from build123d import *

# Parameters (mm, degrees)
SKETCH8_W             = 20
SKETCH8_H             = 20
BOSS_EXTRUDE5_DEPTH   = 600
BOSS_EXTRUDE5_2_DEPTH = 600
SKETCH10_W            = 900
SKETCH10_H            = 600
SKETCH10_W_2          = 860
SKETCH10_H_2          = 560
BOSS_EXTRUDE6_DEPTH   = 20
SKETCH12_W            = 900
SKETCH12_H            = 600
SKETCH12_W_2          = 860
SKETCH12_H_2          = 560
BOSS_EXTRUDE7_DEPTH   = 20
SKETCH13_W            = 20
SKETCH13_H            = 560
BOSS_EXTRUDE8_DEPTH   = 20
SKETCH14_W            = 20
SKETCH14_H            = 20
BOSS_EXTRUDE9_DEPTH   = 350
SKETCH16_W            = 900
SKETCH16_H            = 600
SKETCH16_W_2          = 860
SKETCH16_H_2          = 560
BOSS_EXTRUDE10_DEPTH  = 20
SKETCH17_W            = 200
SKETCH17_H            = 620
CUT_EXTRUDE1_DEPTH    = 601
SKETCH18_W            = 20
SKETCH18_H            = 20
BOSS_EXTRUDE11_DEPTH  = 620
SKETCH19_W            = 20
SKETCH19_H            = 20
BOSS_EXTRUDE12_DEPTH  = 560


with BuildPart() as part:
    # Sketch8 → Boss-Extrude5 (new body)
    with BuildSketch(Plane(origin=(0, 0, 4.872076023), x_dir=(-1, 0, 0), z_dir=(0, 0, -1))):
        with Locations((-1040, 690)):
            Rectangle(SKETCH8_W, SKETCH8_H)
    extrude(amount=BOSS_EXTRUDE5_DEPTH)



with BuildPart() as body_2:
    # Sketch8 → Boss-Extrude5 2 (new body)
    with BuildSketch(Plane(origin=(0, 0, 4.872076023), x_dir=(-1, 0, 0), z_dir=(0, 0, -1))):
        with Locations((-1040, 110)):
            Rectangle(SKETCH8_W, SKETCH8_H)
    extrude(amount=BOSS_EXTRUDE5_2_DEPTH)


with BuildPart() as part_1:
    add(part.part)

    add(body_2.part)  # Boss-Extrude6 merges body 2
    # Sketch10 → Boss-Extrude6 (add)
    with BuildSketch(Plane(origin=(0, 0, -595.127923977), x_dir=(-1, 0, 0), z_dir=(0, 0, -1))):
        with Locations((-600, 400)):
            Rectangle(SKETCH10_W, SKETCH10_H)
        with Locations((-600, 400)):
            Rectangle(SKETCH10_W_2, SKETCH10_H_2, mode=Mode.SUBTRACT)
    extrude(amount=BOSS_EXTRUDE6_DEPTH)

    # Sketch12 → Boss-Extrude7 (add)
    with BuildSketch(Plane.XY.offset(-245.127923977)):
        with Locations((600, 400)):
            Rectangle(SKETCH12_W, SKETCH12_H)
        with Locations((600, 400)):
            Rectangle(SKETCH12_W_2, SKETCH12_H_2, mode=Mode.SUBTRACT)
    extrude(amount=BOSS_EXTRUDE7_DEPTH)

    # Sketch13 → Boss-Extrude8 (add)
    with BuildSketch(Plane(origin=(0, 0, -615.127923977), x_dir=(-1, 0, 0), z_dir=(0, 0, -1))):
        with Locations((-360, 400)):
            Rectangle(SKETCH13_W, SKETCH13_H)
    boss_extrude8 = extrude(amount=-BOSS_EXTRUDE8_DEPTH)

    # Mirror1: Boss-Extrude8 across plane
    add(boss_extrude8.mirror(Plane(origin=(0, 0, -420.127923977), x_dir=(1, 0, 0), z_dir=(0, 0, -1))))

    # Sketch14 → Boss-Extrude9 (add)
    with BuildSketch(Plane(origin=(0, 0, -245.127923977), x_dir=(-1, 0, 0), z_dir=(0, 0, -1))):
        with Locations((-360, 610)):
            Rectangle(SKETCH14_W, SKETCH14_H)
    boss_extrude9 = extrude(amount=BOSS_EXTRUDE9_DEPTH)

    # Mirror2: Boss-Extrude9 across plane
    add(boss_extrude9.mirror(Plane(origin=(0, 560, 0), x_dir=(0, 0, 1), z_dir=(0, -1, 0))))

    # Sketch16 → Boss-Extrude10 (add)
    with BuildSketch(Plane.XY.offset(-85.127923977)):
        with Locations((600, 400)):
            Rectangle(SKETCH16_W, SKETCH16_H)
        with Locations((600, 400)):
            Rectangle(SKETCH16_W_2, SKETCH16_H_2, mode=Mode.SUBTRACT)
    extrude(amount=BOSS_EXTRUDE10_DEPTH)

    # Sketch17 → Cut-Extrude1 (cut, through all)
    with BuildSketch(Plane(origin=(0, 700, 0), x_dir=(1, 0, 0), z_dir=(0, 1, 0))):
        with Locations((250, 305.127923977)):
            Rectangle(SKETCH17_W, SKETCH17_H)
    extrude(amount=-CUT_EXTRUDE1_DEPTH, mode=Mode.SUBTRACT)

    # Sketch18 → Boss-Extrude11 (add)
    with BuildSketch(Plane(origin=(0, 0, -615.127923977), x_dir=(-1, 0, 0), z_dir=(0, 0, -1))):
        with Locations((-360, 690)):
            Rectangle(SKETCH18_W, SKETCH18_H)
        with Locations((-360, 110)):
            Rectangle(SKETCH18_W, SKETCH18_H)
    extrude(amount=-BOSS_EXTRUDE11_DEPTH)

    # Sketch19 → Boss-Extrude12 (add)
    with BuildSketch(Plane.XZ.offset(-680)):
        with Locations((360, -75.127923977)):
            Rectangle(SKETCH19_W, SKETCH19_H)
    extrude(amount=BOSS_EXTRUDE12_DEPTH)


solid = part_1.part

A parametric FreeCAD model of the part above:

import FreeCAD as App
import Part
import Sketcher
from FreeCAD import Vector
Q = App.Units.Quantity

doc = App.newDocument("Part")
body = doc.addObject("PartDesign::Body", "Body")

# Sketch on XY plane
sketch1 = body.newObject("Sketcher::SketchObject", "Sketch")
sketch1.AttachmentSupport = (doc.getObject("XY_Plane"), [""])
sketch1.MapMode = "FlatFace"
sketch1.AttachmentOffset = App.Placement(Vector(0, 0, 4.872076), App.Rotation())
sketch1.addGeometry([
    Part.LineSegment(Vector(1050, 700, 0), Vector(1050, 680, 0)),
    Part.LineSegment(Vector(1050, 680, 0), Vector(1030, 680, 0)),
    Part.LineSegment(Vector(1030, 680, 0), Vector(1030, 700, 0)),
    Part.LineSegment(Vector(1030, 700, 0), Vector(1050, 700, 0)),
], False)
sketch1.addConstraint([
    Sketcher.Constraint("Coincident", 0, 2, 1, 1),
    Sketcher.Constraint("Coincident", 1, 2, 2, 1),
    Sketcher.Constraint("Coincident", 2, 2, 3, 1),
    Sketcher.Constraint("Coincident", 3, 2, 0, 1),
    Sketcher.Constraint("Vertical", 0),
    Sketcher.Constraint("Horizontal", 1),
    Sketcher.Constraint("Vertical", 2),
    Sketcher.Constraint("Horizontal", 3),
    Sketcher.Constraint("Equal", 3, 0),
    Sketcher.Constraint("DistanceX", 1, 2, 1, 1, Q("20 mm")),
    Sketcher.Constraint("DistanceX", -1, 1, 0, 2, Q("1050 mm")),
    Sketcher.Constraint("DistanceY", -1, 1, 0, 2, Q("680 mm")),
])
pad1 = body.newObject("PartDesign::Pad", "Pad")
pad1.Profile = sketch1
pad1.Length = 600
pad1.Reversed = True
body2 = doc.addObject("PartDesign::Body", "Body001")

# Sketch on XY plane
sketch2 = body2.newObject("Sketcher::SketchObject", "Sketch001")
sketch2.AttachmentSupport = (doc.getObject("XY_Plane001"), [""])
sketch2.MapMode = "FlatFace"
sketch2.AttachmentOffset = App.Placement(Vector(0, 0, 4.872076), App.Rotation())
sketch2.addGeometry([
    Part.LineSegment(Vector(1050, 120, 0), Vector(1050, 100, 0)),
    Part.LineSegment(Vector(1050, 100, 0), Vector(1030, 100, 0)),
    Part.LineSegment(Vector(1030, 100, 0), Vector(1030, 120, 0)),
    Part.LineSegment(Vector(1030, 120, 0), Vector(1050, 120, 0)),
], False)
sketch2.addConstraint([
    Sketcher.Constraint("Coincident", 0, 2, 1, 1),
    Sketcher.Constraint("Coincident", 1, 2, 2, 1),
    Sketcher.Constraint("Coincident", 2, 2, 3, 1),
    Sketcher.Constraint("Coincident", 3, 2, 0, 1),
    Sketcher.Constraint("Vertical", 0),
    Sketcher.Constraint("Horizontal", 1),
    Sketcher.Constraint("Vertical", 2),
    Sketcher.Constraint("Horizontal", 3),
    Sketcher.Constraint("Equal", 3, 0),
    Sketcher.Constraint("DistanceX", 1, 2, 1, 1, Q("20 mm")),
    Sketcher.Constraint("DistanceX", -1, 1, 0, 2, Q("1050 mm")),
    Sketcher.Constraint("DistanceY", -1, 1, 0, 2, Q("100 mm")),
])
pad2 = body2.newObject("PartDesign::Pad", "Pad001")
pad2.Profile = sketch2
pad2.Length = 600
pad2.Reversed = True
body.AllowCompound = True
doc.recompute()

boolean = body.newObject("PartDesign::Boolean", "Boolean")
boolean.Type = "Fuse"
boolean.addObjects([body2])

# Sketch on XY plane
sketch3 = body.newObject("Sketcher::SketchObject", "Sketch002")
sketch3.AttachmentSupport = (doc.getObject("XY_Plane"), [""])
sketch3.MapMode = "FlatFace"
sketch3.AttachmentOffset = App.Placement(Vector(0, 0, -595.127924), App.Rotation())
sketch3.addGeometry([
    Part.LineSegment(Vector(1050, 700, 0), Vector(1050, 100, 0)),  # 0
    Part.LineSegment(Vector(1050, 100, 0), Vector(150, 100, 0)),  # 1
    Part.LineSegment(Vector(150, 100, 0), Vector(150, 700, 0)),  # 2
    Part.LineSegment(Vector(150, 700, 0), Vector(1050, 700, 0)),  # 3
    Part.LineSegment(Vector(170, 120, 0), Vector(1030, 120, 0)),  # 4
    Part.LineSegment(Vector(1030, 120, 0), Vector(1030, 680, 0)),  # 5
    Part.LineSegment(Vector(1030, 680, 0), Vector(170, 680, 0)),  # 6
    Part.LineSegment(Vector(170, 680, 0), Vector(170, 120, 0)),  # 7
], False)
sketch3.addConstraint([
    Sketcher.Constraint("Coincident", 0, 2, 1, 1),
    Sketcher.Constraint("Coincident", 1, 2, 2, 1),
    Sketcher.Constraint("Coincident", 2, 2, 3, 1),
    Sketcher.Constraint("Coincident", 3, 2, 0, 1),
    Sketcher.Constraint("Coincident", 4, 2, 5, 1),
    Sketcher.Constraint("Coincident", 5, 2, 6, 1),
    Sketcher.Constraint("Coincident", 6, 2, 7, 1),
    Sketcher.Constraint("Coincident", 7, 2, 4, 1),
    Sketcher.Constraint("Vertical", 0),
    Sketcher.Constraint("Horizontal", 1),
    Sketcher.Constraint("Vertical", 2),
    Sketcher.Constraint("Horizontal", 3),
    Sketcher.Constraint("Horizontal", 4),
    Sketcher.Constraint("Vertical", 5),
    Sketcher.Constraint("Horizontal", 6),
    Sketcher.Constraint("Vertical", 7),
    Sketcher.Constraint("DistanceX", 1, 2, 1, 1, Q("900 mm")),
    Sketcher.Constraint("DistanceX", 4, 1, 4, 2, Q("860 mm")),
    Sketcher.Constraint("DistanceY", 0, 2, 0, 1, Q("600 mm")),
    Sketcher.Constraint("DistanceY", 5, 1, 5, 2, Q("560 mm")),
    Sketcher.Constraint("DistanceX", -1, 1, 0, 2, Q("1050 mm")),
    Sketcher.Constraint("DistanceY", -1, 1, 0, 2, Q("100 mm")),
    Sketcher.Constraint("DistanceX", -1, 1, 4, 2, Q("1030 mm")),
    Sketcher.Constraint("DistanceY", -1, 1, 4, 2, Q("120 mm")),
])
pad3 = body.newObject("PartDesign::Pad", "Pad002")
pad3.Profile = sketch3
pad3.Length = 20
pad3.Reversed = True

# Sketch on XY plane
sketch4 = body.newObject("Sketcher::SketchObject", "Sketch003")
sketch4.AttachmentSupport = (doc.getObject("XY_Plane"), [""])
sketch4.MapMode = "FlatFace"
sketch4.AttachmentOffset = App.Placement(Vector(0, 0, -245.127924), App.Rotation())
sketch4.addGeometry([
    Part.LineSegment(Vector(150, 700, 0), Vector(150, 100, 0)),  # 0
    Part.LineSegment(Vector(150, 100, 0), Vector(1050, 100, 0)),  # 1
    Part.LineSegment(Vector(1050, 100, 0), Vector(1050, 700, 0)),  # 2
    Part.LineSegment(Vector(1050, 700, 0), Vector(150, 700, 0)),  # 3
    Part.LineSegment(Vector(1030, 120, 0), Vector(170, 120, 0)),  # 4
    Part.LineSegment(Vector(170, 120, 0), Vector(170, 680, 0)),  # 5
    Part.LineSegment(Vector(170, 680, 0), Vector(1030, 680, 0)),  # 6
    Part.LineSegment(Vector(1030, 680, 0), Vector(1030, 120, 0)),  # 7
], False)
sketch4.addConstraint([
    Sketcher.Constraint("Coincident", 0, 2, 1, 1),
    Sketcher.Constraint("Coincident", 1, 2, 2, 1),
    Sketcher.Constraint("Coincident", 2, 2, 3, 1),
    Sketcher.Constraint("Coincident", 3, 2, 0, 1),
    Sketcher.Constraint("Coincident", 4, 2, 5, 1),
    Sketcher.Constraint("Coincident", 5, 2, 6, 1),
    Sketcher.Constraint("Coincident", 6, 2, 7, 1),
    Sketcher.Constraint("Coincident", 7, 2, 4, 1),
    Sketcher.Constraint("Vertical", 0),
    Sketcher.Constraint("Horizontal", 1),
    Sketcher.Constraint("Vertical", 2),
    Sketcher.Constraint("Horizontal", 3),
    Sketcher.Constraint("Horizontal", 4),
    Sketcher.Constraint("Vertical", 5),
    Sketcher.Constraint("Horizontal", 6),
    Sketcher.Constraint("Vertical", 7),
    Sketcher.Constraint("DistanceX", 1, 1, 1, 2, Q("900 mm")),
    Sketcher.Constraint("DistanceX", 4, 2, 4, 1, Q("860 mm")),
    Sketcher.Constraint("DistanceY", 0, 2, 0, 1, Q("600 mm")),
    Sketcher.Constraint("DistanceY", 5, 1, 5, 2, Q("560 mm")),
    Sketcher.Constraint("DistanceX", -1, 1, 0, 2, Q("150 mm")),
    Sketcher.Constraint("DistanceY", -1, 1, 0, 2, Q("100 mm")),
    Sketcher.Constraint("DistanceX", -1, 1, 4, 2, Q("170 mm")),
    Sketcher.Constraint("DistanceY", -1, 1, 4, 2, Q("120 mm")),
])
pad4 = body.newObject("PartDesign::Pad", "Pad003")
pad4.Profile = sketch4
pad4.Length = 20

# Sketch on XY plane
sketch5 = body.newObject("Sketcher::SketchObject", "Sketch004")
sketch5.AttachmentSupport = (doc.getObject("XY_Plane"), [""])
sketch5.MapMode = "FlatFace"
sketch5.AttachmentOffset = App.Placement(Vector(0, 0, -615.127924), App.Rotation())
sketch5.addGeometry([
    Part.LineSegment(Vector(370, 680, 0), Vector(370, 120, 0)),
    Part.LineSegment(Vector(370, 120, 0), Vector(350, 120, 0)),
    Part.LineSegment(Vector(350, 120, 0), Vector(350, 680, 0)),
    Part.LineSegment(Vector(350, 680, 0), Vector(370, 680, 0)),
], False)
sketch5.addConstraint([
    Sketcher.Constraint("Coincident", 0, 2, 1, 1),
    Sketcher.Constraint("Coincident", 1, 2, 2, 1),
    Sketcher.Constraint("Coincident", 2, 2, 3, 1),
    Sketcher.Constraint("Coincident", 3, 2, 0, 1),
    Sketcher.Constraint("Vertical", 0),
    Sketcher.Constraint("Horizontal", 1),
    Sketcher.Constraint("Vertical", 2),
    Sketcher.Constraint("Horizontal", 3),
    Sketcher.Constraint("DistanceX", 1, 2, 1, 1, Q("20 mm")),
    Sketcher.Constraint("DistanceY", 0, 2, 0, 1, Q("560 mm")),
    Sketcher.Constraint("DistanceX", -1, 1, 0, 2, Q("370 mm")),
    Sketcher.Constraint("DistanceY", -1, 1, 0, 2, Q("120 mm")),
])
pad5 = body.newObject("PartDesign::Pad", "Pad004")
pad5.Profile = sketch5
pad5.Length = 20
doc.recompute()

datumplane = body.newObject("PartDesign::Plane", "DatumPlane")
datumplane.AttachmentSupport = (doc.getObject("XY_Plane"), [""])
datumplane.MapMode = "FlatFace"
datumplane.AttachmentOffset = App.Placement(Vector(0, 0, -420.127924), App.Rotation())
mirrored = body.newObject("PartDesign::Mirrored", "Mirrored")
mirrored.Originals = [pad5]
mirrored.MirrorPlane = (datumplane, [""])
body.Tip = mirrored

# Sketch on XY plane
sketch6 = body.newObject("Sketcher::SketchObject", "Sketch005")
sketch6.AttachmentSupport = (doc.getObject("XY_Plane"), [""])
sketch6.MapMode = "FlatFace"
sketch6.AttachmentOffset = App.Placement(Vector(0, 0, -245.127924), App.Rotation())
sketch6.addGeometry([
    Part.LineSegment(Vector(370, 620, 0), Vector(370, 600, 0)),
    Part.LineSegment(Vector(370, 600, 0), Vector(350, 600, 0)),
    Part.LineSegment(Vector(350, 600, 0), Vector(350, 620, 0)),
    Part.LineSegment(Vector(350, 620, 0), Vector(370, 620, 0)),
], False)
sketch6.addConstraint([
    Sketcher.Constraint("Coincident", 0, 2, 1, 1),
    Sketcher.Constraint("Coincident", 1, 2, 2, 1),
    Sketcher.Constraint("Coincident", 2, 2, 3, 1),
    Sketcher.Constraint("Coincident", 3, 2, 0, 1),
    Sketcher.Constraint("Vertical", 0),
    Sketcher.Constraint("Horizontal", 1),
    Sketcher.Constraint("Vertical", 2),
    Sketcher.Constraint("Horizontal", 3),
    Sketcher.Constraint("Equal", 3, 0),
    Sketcher.Constraint("DistanceX", 1, 2, 1, 1, Q("20 mm")),
    Sketcher.Constraint("DistanceX", -1, 1, 0, 2, Q("370 mm")),
    Sketcher.Constraint("DistanceY", -1, 1, 0, 2, Q("600 mm")),
])
pad6 = body.newObject("PartDesign::Pad", "Pad005")
pad6.Profile = sketch6
pad6.Length = 350
pad6.Reversed = True
doc.recompute()

datumplane2 = body.newObject("PartDesign::Plane", "DatumPlane001")
datumplane2.AttachmentSupport = (doc.getObject("XZ_Plane"), [""])
datumplane2.MapMode = "FlatFace"
datumplane2.AttachmentOffset = App.Placement(Vector(0, 0, -560), App.Rotation())
mirrored2 = body.newObject("PartDesign::Mirrored", "Mirrored001")
mirrored2.Originals = [pad6]
mirrored2.MirrorPlane = (datumplane2, [""])
body.Tip = mirrored2

# Sketch on XY plane
sketch7 = body.newObject("Sketcher::SketchObject", "Sketch006")
sketch7.AttachmentSupport = (doc.getObject("XY_Plane"), [""])
sketch7.MapMode = "FlatFace"
sketch7.AttachmentOffset = App.Placement(Vector(0, 0, -85.127924), App.Rotation())
sketch7.addGeometry([
    Part.LineSegment(Vector(150, 700, 0), Vector(150, 100, 0)),  # 0
    Part.LineSegment(Vector(150, 100, 0), Vector(1050, 100, 0)),  # 1
    Part.LineSegment(Vector(1050, 100, 0), Vector(1050, 700, 0)),  # 2
    Part.LineSegment(Vector(1050, 700, 0), Vector(150, 700, 0)),  # 3
    Part.LineSegment(Vector(1030, 120, 0), Vector(170, 120, 0)),  # 4
    Part.LineSegment(Vector(170, 120, 0), Vector(170, 680, 0)),  # 5
    Part.LineSegment(Vector(170, 680, 0), Vector(1030, 680, 0)),  # 6
    Part.LineSegment(Vector(1030, 680, 0), Vector(1030, 120, 0)),  # 7
], False)
sketch7.addConstraint([
    Sketcher.Constraint("Coincident", 0, 2, 1, 1),
    Sketcher.Constraint("Coincident", 1, 2, 2, 1),
    Sketcher.Constraint("Coincident", 2, 2, 3, 1),
    Sketcher.Constraint("Coincident", 3, 2, 0, 1),
    Sketcher.Constraint("Coincident", 4, 2, 5, 1),
    Sketcher.Constraint("Coincident", 5, 2, 6, 1),
    Sketcher.Constraint("Coincident", 6, 2, 7, 1),
    Sketcher.Constraint("Coincident", 7, 2, 4, 1),
    Sketcher.Constraint("Vertical", 0),
    Sketcher.Constraint("Horizontal", 1),
    Sketcher.Constraint("Vertical", 2),
    Sketcher.Constraint("Horizontal", 3),
    Sketcher.Constraint("Horizontal", 4),
    Sketcher.Constraint("Vertical", 5),
    Sketcher.Constraint("Horizontal", 6),
    Sketcher.Constraint("Vertical", 7),
    Sketcher.Constraint("DistanceX", 1, 1, 1, 2, Q("900 mm")),
    Sketcher.Constraint("DistanceX", 4, 2, 4, 1, Q("860 mm")),
    Sketcher.Constraint("DistanceY", 0, 2, 0, 1, Q("600 mm")),
    Sketcher.Constraint("DistanceY", 5, 1, 5, 2, Q("560 mm")),
    Sketcher.Constraint("DistanceX", -1, 1, 0, 2, Q("150 mm")),
    Sketcher.Constraint("DistanceY", -1, 1, 0, 2, Q("100 mm")),
    Sketcher.Constraint("DistanceX", -1, 1, 4, 2, Q("170 mm")),
    Sketcher.Constraint("DistanceY", -1, 1, 4, 2, Q("120 mm")),
])
pad7 = body.newObject("PartDesign::Pad", "Pad006")
pad7.Profile = sketch7
pad7.Length = 20

# Sketch on XZ plane
sketch8 = body.newObject("Sketcher::SketchObject", "Sketch007")
sketch8.AttachmentSupport = (doc.getObject("XZ_Plane"), [""])
sketch8.MapMode = "FlatFace"
sketch8.AttachmentOffset = App.Placement(Vector(0, 0, -700), App.Rotation())
sketch8.addGeometry([
    Part.LineSegment(Vector(150, -615.127924, 0), Vector(150, 4.872076, 0)),
    Part.LineSegment(Vector(150, 4.872076, 0), Vector(350, 4.872076, 0)),
    Part.LineSegment(Vector(350, 4.872076, 0), Vector(350, -615.127924, 0)),
    Part.LineSegment(Vector(350, -615.127924, 0), Vector(150, -615.127924, 0)),
], False)
sketch8.addConstraint([
    Sketcher.Constraint("Coincident", 0, 2, 1, 1),
    Sketcher.Constraint("Coincident", 1, 2, 2, 1),
    Sketcher.Constraint("Coincident", 2, 2, 3, 1),
    Sketcher.Constraint("Coincident", 3, 2, 0, 1),
    Sketcher.Constraint("Vertical", 0),
    Sketcher.Constraint("Horizontal", 1),
    Sketcher.Constraint("Vertical", 2),
    Sketcher.Constraint("Horizontal", 3),
    Sketcher.Constraint("DistanceX", 1, 1, 1, 2, Q("200 mm")),
    Sketcher.Constraint("DistanceY", 0, 1, 0, 2, Q("620 mm")),
    Sketcher.Constraint("DistanceX", -1, 1, 0, 2, Q("150 mm")),
    Sketcher.Constraint("DistanceY", -1, 1, 0, 2, Q("4.872076 mm")),
])
pocket1 = body.newObject("PartDesign::Pocket", "Pocket")
pocket1.Profile = sketch8
pocket1.Type = "ThroughAll"
pocket1.Reversed = True

# Sketch on XY plane
sketch9 = body.newObject("Sketcher::SketchObject", "Sketch008")
sketch9.AttachmentSupport = (doc.getObject("XY_Plane"), [""])
sketch9.MapMode = "FlatFace"
sketch9.AttachmentOffset = App.Placement(Vector(0, 0, -615.127924), App.Rotation())
sketch9.addGeometry([
    Part.LineSegment(Vector(370, 700, 0), Vector(370, 680, 0)),  # 0
    Part.LineSegment(Vector(370, 680, 0), Vector(350, 680, 0)),  # 1
    Part.LineSegment(Vector(350, 680, 0), Vector(350, 700, 0)),  # 2
    Part.LineSegment(Vector(350, 700, 0), Vector(370, 700, 0)),  # 3
    Part.LineSegment(Vector(370, 120, 0), Vector(370, 100, 0)),  # 4
    Part.LineSegment(Vector(370, 100, 0), Vector(350, 100, 0)),  # 5
    Part.LineSegment(Vector(350, 100, 0), Vector(350, 120, 0)),  # 6
    Part.LineSegment(Vector(350, 120, 0), Vector(370, 120, 0)),  # 7
], False)
sketch9.addConstraint([
    Sketcher.Constraint("Coincident", 0, 2, 1, 1),
    Sketcher.Constraint("Coincident", 1, 2, 2, 1),
    Sketcher.Constraint("Coincident", 2, 2, 3, 1),
    Sketcher.Constraint("Coincident", 3, 2, 0, 1),
    Sketcher.Constraint("Coincident", 4, 2, 5, 1),
    Sketcher.Constraint("Coincident", 5, 2, 6, 1),
    Sketcher.Constraint("Coincident", 6, 2, 7, 1),
    Sketcher.Constraint("Coincident", 7, 2, 4, 1),
    Sketcher.Constraint("Vertical", 0),
    Sketcher.Constraint("Horizontal", 1),
    Sketcher.Constraint("Vertical", 2),
    Sketcher.Constraint("Horizontal", 3),
    Sketcher.Constraint("Vertical", 4),
    Sketcher.Constraint("Horizontal", 5),
    Sketcher.Constraint("Vertical", 6),
    Sketcher.Constraint("Horizontal", 7),
    Sketcher.Constraint("Vertical", 3, 2, 4, 2),
    Sketcher.Constraint("Vertical", 2, 2, 5, 2),
    Sketcher.Constraint("Equal", 7, 0),
    Sketcher.Constraint("Equal", 2, 4),
    Sketcher.Constraint("DistanceX", 1, 2, 1, 1, Q("20 mm")),
    Sketcher.Constraint("DistanceX", -1, 1, 0, 2, Q("370 mm")),
    Sketcher.Constraint("DistanceY", -1, 1, 0, 2, Q("680 mm")),
    Sketcher.Constraint("DistanceY", -1, 1, 4, 2, Q("100 mm")),
])
pad8 = body.newObject("PartDesign::Pad", "Pad007")
pad8.Profile = sketch9
pad8.Length = 620

# Sketch on XZ plane
sketch10 = body.newObject("Sketcher::SketchObject", "Sketch009")
sketch10.AttachmentSupport = (doc.getObject("XZ_Plane"), [""])
sketch10.MapMode = "FlatFace"
sketch10.AttachmentOffset = App.Placement(Vector(0, 0, -680), App.Rotation())
sketch10.addGeometry([
    Part.LineSegment(Vector(350, -65.127924, 0), Vector(350, -85.127924, 0)),
    Part.LineSegment(Vector(350, -85.127924, 0), Vector(370, -85.127924, 0)),
    Part.LineSegment(Vector(370, -85.127924, 0), Vector(370, -65.127924, 0)),
    Part.LineSegment(Vector(370, -65.127924, 0), Vector(350, -65.127924, 0)),
], False)
sketch10.addConstraint([
    Sketcher.Constraint("Coincident", 0, 2, 1, 1),
    Sketcher.Constraint("Coincident", 1, 2, 2, 1),
    Sketcher.Constraint("Coincident", 2, 2, 3, 1),
    Sketcher.Constraint("Coincident", 3, 2, 0, 1),
    Sketcher.Constraint("Vertical", 0),
    Sketcher.Constraint("Horizontal", 1),
    Sketcher.Constraint("Vertical", 2),
    Sketcher.Constraint("Horizontal", 3),
    Sketcher.Constraint("Equal", 3, 0),
    Sketcher.Constraint("DistanceX", 1, 1, 1, 2, Q("20 mm")),
    Sketcher.Constraint("DistanceX", -1, 1, 0, 2, Q("350 mm")),
    Sketcher.Constraint("DistanceY", 0, 2, -1, 1, Q("85.127924 mm")),
])
pad9 = body.newObject("PartDesign::Pad", "Pad008")
pad9.Profile = sketch10
pad9.Length = 560

doc.recompute()
